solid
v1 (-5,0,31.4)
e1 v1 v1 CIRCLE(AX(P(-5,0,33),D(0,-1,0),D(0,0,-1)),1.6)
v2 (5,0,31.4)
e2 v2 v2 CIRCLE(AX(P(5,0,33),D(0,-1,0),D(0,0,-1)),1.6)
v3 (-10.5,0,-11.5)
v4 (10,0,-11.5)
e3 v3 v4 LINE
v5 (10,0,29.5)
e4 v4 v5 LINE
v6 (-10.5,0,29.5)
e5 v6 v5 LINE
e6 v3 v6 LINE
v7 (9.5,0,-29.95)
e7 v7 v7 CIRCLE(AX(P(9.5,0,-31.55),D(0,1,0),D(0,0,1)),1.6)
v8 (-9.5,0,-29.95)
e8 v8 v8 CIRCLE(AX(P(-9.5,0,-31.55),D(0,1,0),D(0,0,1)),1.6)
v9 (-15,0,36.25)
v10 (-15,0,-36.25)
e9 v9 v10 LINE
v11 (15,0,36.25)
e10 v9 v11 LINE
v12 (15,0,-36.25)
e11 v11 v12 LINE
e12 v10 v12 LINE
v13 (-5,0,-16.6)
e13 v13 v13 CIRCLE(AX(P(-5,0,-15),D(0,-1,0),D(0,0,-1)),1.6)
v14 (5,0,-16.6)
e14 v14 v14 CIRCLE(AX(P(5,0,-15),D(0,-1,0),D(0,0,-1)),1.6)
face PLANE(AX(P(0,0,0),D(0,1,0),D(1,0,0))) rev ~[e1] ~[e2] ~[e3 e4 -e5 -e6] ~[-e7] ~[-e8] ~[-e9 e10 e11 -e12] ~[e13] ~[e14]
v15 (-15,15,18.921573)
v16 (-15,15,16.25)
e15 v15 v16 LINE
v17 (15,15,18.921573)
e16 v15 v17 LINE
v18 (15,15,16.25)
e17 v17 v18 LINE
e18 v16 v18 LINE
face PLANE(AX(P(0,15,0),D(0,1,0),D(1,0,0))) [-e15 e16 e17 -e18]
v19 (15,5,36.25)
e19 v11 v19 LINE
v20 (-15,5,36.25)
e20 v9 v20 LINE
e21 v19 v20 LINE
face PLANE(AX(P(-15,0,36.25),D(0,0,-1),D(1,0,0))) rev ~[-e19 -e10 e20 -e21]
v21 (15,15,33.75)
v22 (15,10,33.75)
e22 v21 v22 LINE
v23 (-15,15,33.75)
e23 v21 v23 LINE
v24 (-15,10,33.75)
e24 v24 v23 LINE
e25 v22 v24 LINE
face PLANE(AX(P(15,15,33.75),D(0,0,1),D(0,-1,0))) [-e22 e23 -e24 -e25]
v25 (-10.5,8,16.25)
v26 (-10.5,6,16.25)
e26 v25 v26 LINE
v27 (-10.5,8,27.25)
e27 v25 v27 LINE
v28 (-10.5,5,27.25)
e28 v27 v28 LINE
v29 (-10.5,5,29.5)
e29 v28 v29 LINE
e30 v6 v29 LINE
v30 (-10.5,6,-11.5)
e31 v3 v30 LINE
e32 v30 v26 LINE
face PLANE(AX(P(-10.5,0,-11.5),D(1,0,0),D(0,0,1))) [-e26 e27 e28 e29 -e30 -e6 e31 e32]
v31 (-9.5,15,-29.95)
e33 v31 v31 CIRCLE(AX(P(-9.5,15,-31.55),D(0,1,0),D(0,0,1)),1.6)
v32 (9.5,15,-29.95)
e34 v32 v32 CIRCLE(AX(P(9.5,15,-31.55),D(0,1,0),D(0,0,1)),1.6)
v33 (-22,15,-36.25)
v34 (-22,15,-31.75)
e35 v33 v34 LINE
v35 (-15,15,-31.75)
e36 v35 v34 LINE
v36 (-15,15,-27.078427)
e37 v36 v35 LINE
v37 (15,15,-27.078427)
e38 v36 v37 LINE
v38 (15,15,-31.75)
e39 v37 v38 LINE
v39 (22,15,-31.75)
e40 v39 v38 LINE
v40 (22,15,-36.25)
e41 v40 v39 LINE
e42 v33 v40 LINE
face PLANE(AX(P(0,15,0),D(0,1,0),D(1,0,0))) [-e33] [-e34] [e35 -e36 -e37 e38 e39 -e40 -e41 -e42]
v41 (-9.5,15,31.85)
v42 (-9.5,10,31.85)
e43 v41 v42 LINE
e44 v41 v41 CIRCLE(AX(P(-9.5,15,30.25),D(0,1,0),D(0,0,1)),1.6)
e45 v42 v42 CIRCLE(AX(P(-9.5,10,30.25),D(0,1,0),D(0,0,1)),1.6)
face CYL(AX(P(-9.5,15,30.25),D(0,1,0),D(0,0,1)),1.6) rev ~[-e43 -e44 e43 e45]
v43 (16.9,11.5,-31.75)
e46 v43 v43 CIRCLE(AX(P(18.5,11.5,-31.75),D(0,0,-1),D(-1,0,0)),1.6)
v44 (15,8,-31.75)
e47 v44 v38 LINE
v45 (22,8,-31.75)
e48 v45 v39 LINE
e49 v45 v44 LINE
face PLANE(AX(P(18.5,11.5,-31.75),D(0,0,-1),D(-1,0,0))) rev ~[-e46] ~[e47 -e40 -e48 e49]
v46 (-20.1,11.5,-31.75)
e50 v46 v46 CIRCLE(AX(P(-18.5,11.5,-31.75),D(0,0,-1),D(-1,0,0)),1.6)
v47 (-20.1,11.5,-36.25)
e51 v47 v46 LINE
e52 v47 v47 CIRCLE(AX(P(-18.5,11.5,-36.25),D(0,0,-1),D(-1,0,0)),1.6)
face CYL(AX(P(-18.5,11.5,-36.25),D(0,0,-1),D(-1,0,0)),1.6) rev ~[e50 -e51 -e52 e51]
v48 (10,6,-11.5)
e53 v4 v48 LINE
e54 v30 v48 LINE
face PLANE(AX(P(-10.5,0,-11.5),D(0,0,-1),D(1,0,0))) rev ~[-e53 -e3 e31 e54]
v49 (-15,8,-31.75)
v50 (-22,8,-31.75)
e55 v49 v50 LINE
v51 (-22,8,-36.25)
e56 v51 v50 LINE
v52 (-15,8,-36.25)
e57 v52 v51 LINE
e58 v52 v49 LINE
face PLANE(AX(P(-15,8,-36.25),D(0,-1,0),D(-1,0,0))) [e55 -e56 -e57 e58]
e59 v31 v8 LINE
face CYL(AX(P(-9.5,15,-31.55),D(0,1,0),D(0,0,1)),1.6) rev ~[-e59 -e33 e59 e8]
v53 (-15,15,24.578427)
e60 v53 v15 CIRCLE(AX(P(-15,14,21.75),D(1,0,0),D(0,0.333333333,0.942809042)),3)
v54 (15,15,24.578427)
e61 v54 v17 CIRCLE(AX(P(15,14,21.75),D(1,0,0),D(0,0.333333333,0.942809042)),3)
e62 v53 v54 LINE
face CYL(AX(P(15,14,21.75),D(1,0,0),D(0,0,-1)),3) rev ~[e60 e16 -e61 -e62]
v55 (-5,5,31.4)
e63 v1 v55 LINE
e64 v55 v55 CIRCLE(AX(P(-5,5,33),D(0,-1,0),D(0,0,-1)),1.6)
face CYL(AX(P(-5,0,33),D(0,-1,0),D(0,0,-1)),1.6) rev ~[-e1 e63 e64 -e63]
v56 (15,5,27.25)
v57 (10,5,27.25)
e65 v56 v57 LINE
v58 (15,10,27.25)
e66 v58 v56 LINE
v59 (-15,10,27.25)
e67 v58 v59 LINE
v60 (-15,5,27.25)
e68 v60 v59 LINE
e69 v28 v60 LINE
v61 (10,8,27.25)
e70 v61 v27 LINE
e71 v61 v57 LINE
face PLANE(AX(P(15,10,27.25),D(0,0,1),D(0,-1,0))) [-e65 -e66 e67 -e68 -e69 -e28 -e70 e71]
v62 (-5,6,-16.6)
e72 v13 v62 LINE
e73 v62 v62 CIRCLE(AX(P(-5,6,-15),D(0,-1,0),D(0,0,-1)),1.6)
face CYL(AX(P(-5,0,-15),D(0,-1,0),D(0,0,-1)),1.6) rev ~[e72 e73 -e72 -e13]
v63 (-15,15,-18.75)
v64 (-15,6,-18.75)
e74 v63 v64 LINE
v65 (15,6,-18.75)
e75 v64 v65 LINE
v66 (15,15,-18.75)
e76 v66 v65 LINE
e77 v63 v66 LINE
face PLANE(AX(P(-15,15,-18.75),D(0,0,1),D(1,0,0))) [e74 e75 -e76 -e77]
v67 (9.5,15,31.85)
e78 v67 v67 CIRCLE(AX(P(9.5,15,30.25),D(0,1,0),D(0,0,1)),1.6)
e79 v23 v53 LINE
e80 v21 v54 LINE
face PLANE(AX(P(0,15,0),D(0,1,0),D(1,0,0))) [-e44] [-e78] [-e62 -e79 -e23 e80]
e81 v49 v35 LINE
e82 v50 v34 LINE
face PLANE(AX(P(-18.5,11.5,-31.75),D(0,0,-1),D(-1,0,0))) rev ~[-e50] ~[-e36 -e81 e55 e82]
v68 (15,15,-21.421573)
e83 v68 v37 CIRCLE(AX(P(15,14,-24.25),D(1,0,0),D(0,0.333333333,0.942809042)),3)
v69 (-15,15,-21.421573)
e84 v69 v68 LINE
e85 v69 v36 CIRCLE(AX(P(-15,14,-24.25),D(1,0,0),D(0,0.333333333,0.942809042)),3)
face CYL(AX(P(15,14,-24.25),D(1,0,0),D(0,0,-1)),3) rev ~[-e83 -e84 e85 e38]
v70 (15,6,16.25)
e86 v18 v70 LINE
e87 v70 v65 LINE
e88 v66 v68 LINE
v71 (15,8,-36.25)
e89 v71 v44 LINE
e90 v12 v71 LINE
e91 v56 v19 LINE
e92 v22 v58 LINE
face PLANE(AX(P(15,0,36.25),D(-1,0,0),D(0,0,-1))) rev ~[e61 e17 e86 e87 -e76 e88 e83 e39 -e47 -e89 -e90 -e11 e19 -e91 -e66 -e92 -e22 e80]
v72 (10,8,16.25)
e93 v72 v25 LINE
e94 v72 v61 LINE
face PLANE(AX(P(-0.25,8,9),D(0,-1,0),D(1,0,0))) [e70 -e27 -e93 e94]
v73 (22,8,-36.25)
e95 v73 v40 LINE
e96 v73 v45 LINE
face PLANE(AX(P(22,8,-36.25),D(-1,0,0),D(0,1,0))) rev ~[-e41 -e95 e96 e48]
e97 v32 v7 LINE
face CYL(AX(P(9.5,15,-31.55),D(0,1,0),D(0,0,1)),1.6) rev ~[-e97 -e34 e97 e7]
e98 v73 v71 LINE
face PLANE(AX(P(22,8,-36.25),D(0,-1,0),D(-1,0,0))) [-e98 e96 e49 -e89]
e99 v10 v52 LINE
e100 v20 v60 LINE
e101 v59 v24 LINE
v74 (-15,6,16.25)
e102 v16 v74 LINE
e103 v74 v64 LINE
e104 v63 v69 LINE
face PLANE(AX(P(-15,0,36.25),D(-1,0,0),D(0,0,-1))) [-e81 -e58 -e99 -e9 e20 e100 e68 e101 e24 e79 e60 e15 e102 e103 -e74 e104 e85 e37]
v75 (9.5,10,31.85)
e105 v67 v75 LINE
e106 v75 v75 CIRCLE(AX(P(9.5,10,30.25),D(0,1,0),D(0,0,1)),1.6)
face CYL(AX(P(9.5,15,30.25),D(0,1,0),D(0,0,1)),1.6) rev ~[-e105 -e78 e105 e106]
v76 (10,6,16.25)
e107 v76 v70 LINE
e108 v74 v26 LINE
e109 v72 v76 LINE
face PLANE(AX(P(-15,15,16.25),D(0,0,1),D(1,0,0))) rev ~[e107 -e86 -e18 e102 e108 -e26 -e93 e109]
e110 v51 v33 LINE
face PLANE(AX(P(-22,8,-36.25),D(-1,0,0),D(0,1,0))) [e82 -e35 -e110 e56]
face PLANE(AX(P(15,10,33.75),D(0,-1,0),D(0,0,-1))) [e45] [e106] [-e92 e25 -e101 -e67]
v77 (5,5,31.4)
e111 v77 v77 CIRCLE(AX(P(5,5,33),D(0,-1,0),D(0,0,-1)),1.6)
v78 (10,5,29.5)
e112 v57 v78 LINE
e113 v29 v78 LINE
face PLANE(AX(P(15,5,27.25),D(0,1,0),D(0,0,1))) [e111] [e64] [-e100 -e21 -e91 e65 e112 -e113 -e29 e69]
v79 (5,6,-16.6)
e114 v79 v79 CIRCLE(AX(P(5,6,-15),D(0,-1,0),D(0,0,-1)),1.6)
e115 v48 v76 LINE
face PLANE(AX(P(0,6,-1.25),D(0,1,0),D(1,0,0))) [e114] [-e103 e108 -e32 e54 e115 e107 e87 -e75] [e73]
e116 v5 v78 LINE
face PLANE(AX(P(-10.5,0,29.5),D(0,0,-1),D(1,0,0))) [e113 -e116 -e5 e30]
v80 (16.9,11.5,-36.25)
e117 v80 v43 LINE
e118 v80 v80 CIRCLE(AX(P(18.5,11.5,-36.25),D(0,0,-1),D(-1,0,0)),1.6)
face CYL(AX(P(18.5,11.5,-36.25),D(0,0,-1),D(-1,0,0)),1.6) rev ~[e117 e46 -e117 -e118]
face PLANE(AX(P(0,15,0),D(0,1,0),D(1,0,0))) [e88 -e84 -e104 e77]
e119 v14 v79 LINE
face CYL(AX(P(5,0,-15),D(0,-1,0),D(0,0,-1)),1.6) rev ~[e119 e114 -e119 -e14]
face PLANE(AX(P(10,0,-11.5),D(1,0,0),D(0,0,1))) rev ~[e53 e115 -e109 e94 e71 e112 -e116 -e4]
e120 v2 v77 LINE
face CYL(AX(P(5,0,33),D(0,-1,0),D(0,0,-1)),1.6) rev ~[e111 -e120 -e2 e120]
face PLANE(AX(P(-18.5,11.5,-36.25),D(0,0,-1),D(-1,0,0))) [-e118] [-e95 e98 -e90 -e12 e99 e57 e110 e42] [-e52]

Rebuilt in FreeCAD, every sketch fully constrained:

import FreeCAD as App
import Part
import Sketcher

V = App.Vector
Q = App.Units.Quantity

doc = App.newDocument("Part")
body = doc.addObject("PartDesign::Body", "Body")

# Sketch on XZ plane
sketch1 = body.newObject("Sketcher::SketchObject", "Sketch")
sketch1.AttachmentSupport = (doc.getObject("XZ_Plane"), [""])
sketch1.MapMode = "FlatFace"
sketch1.addGeometry([
    Part.LineSegment(V(-15, -36.25, 0), V(-15, 36.25, 0)),
    Part.LineSegment(V(-15, 36.25, 0), V(15, 36.25, 0)),
    Part.LineSegment(V(15, 36.25, 0), V(15, -36.25, 0)),
    Part.LineSegment(V(15, -36.25, 0), V(-15, -36.25, 0)),
], False)
sketch1.addConstraint([
    Sketcher.Constraint("Coincident", 0, 2, 1, 1),
    Sketcher.Constraint("Coincident", 1, 2, 2, 1),
    Sketcher.Constraint("Coincident", 2, 2, 3, 1),
    Sketcher.Constraint("Coincident", 3, 2, 0, 1),
    Sketcher.Constraint("Vertical", 0),
    Sketcher.Constraint("Horizontal", 1),
    Sketcher.Constraint("Vertical", 2),
    Sketcher.Constraint("Horizontal", 3),
    Sketcher.Constraint("Symmetric", 0, 2, 2, 2, -1, 1),
    Sketcher.Constraint("DistanceX", 1, 1, 1, 2, Q("30 mm")),
    Sketcher.Constraint("DistanceY", 0, 1, 0, 2, Q("72.5 mm")),
])
pad1 = body.newObject("PartDesign::Pad", "Pad")
pad1.Profile = sketch1
pad1.Length = 15
pad1.Reversed = True

# Sketch on XZ plane
sketch2 = body.newObject("Sketcher::SketchObject", "Sketch001")
sketch2.AttachmentSupport = (doc.getObject("XZ_Plane"), [""])
sketch2.MapMode = "FlatFace"
sketch2.addGeometry([
    Part.LineSegment(V(-10.5, 29.5, 0), V(-10.5, -11.5, 0)),
    Part.LineSegment(V(-10.5, -11.5, 0), V(10, -11.5, 0)),
    Part.LineSegment(V(10, -11.5, 0), V(10, 29.5, 0)),
    Part.LineSegment(V(10, 29.5, 0), V(-10.5, 29.5, 0)),
], False)
sketch2.addConstraint([
    Sketcher.Constraint("Coincident", 0, 2, 1, 1),
    Sketcher.Constraint("Coincident", 1, 2, 2, 1),
    Sketcher.Constraint("Coincident", 2, 2, 3, 1),
    Sketcher.Constraint("Coincident", 3, 2, 0, 1),
    Sketcher.Constraint("Vertical", 0),
    Sketcher.Constraint("Horizontal", 1),
    Sketcher.Constraint("Vertical", 2),
    Sketcher.Constraint("Horizontal", 3),
    Sketcher.Constraint("DistanceY", 0, 2, 0, 1, Q("41 mm")),
    Sketcher.Constraint("DistanceX", 1, 1, 1, 2, Q("20.5 mm")),
    Sketcher.Constraint("DistanceX", -1, 1, 1, 2, Q("10 mm")),
    Sketcher.Constraint("DistanceY", 0, 2, -1, 1, Q("11.5 mm")),
])
pocket1 = body.newObject("PartDesign::Pocket", "Pocket")
pocket1.Profile = sketch2
pocket1.Length = 8

# Sketch on XZ plane
sketch3 = body.newObject("Sketcher::SketchObject", "Sketch002")
sketch3.AttachmentSupport = (doc.getObject("XZ_Plane"), [""])
sketch3.MapMode = "FlatFace"
sketch3.AttachmentOffset = App.Placement(V(0, 0, -15), App.Rotation())
sketch3.addGeometry([
    Part.LineSegment(V(-15, -18.75, 0), V(-15, 16.25, 0)),
    Part.LineSegment(V(-15, 16.25, 0), V(15, 16.25, 0)),
    Part.LineSegment(V(15, 16.25, 0), V(15, -18.75, 0)),
    Part.LineSegment(V(15, -18.75, 0), V(-15, -18.75, 0)),
], False)
sketch3.addConstraint([
    Sketcher.Constraint("Coincident", 0, 2, 1, 1),
    Sketcher.Constraint("Coincident", 1, 2, 2, 1),
    Sketcher.Constraint("Coincident", 2, 2, 3, 1),
    Sketcher.Constraint("Coincident", 3, 2, 0, 1),
    Sketcher.Constraint("Vertical", 0),
    Sketcher.Constraint("Horizontal", 1),
    Sketcher.Constraint("Vertical", 2),
    Sketcher.Constraint("Horizontal", 3),
    Sketcher.Constraint("DistanceX", 1, 1, 1, 2, Q("30 mm")),
    Sketcher.Constraint("DistanceY", 0, 1, 0, 2, Q("35 mm")),
    Sketcher.Constraint("DistanceX", 0, 2, -1, 1, Q("15 mm")),
    Sketcher.Constraint("DistanceY", -1, 1, 0, 2, Q("16.25 mm")),
])
pocket2 = body.newObject("PartDesign::Pocket", "Pocket001")
pocket2.Profile = sketch3
pocket2.Length = 9
pocket2.Reversed = True

# Sketch on YZ plane
sketch4 = body.newObject("Sketcher::SketchObject", "Sketch003")
sketch4.AttachmentSupport = (doc.getObject("YZ_Plane"), [""])
sketch4.MapMode = "FlatFace"
sketch4.AttachmentOffset = App.Placement(V(0, 0, 15), App.Rotation())
sketch4.addGeometry([
    Part.LineSegment(V(10, 33.75, 0), V(15, 33.75, 0)),  # 0
    Part.LineSegment(V(15, 33.75, 0), V(15, 36.25, 0)),  # 1
    Part.LineSegment(V(15, 36.25, 0), V(5, 36.25, 0)),  # 2
    Part.LineSegment(V(5, 36.25, 0), V(5, 27.25, 0)),  # 3
    Part.LineSegment(V(5, 27.25, 0), V(10, 27.25, 0)),  # 4
    Part.LineSegment(V(10, 27.25, 0), V(10, 33.75, 0)),  # 5
], False)
sketch4.addConstraint([
    Sketcher.Constraint("Coincident", 0, 2, 1, 1),
    Sketcher.Constraint("Coincident", 1, 2, 2, 1),
    Sketcher.Constraint("Coincident", 2, 2, 3, 1),
    Sketcher.Constraint("Coincident", 3, 2, 4, 1),
    Sketcher.Constraint("Coincident", 4, 2, 5, 1),
    Sketcher.Constraint("Coincident", 5, 2, 0, 1),
    Sketcher.Constraint("Horizontal", 0),
    Sketcher.Constraint("Vertical", 1),
    Sketcher.Constraint("Horizontal", 2),
    Sketcher.Constraint("Vertical", 3),
    Sketcher.Constraint("Horizontal", 4),
    Sketcher.Constraint("Vertical", 5),
    Sketcher.Constraint("Equal", 0, 4),
    Sketcher.Constraint("DistanceX", 0, 1, 0, 2, Q("5 mm")),
    Sketcher.Constraint("DistanceY", 3, 2, 3, 1, Q("9 mm")),
    Sketcher.Constraint("DistanceY", 1, 1, 1, 2, Q("2.5 mm")),
    Sketcher.Constraint("DistanceX", -1, 1, 0, 2, Q("15 mm")),
    Sketcher.Constraint("DistanceY", -1, 1, 0, 2, Q("33.75 mm")),
])
pocket3 = body.newObject("PartDesign::Pocket", "Pocket002")
pocket3.Profile = sketch4
pocket3.Type = "ThroughAll"

# Sketch on XZ plane
sketch5 = body.newObject("Sketcher::SketchObject", "Sketch004")
sketch5.AttachmentSupport = (doc.getObject("XZ_Plane"), [""])
sketch5.MapMode = "FlatFace"
sketch5.addGeometry(Part.Circle(V(-5, 33, 0), V(0, 0, 1), 1.6), False)
sketch5.addConstraint([
    Sketcher.Constraint("Diameter", 0, Q("3.2 mm")),
    Sketcher.Constraint("DistanceX", 0, 3, -1, 1, Q("5 mm")),
    Sketcher.Constraint("DistanceY", -1, 1, 0, 3, Q("33 mm")),
])
pocket4 = body.newObject("PartDesign::Pocket", "Pocket003")
pocket4.Profile = sketch5
pocket4.Type = "UpToFirst"

# Sketch on XZ plane
sketch6 = body.newObject("Sketcher::SketchObject", "Sketch005")
sketch6.AttachmentSupport = (doc.getObject("XZ_Plane"), [""])
sketch6.MapMode = "FlatFace"
sketch6.addGeometry(Part.Circle(V(5, 33, 0), V(0, 0, 1), 1.6), False)
sketch6.addConstraint([
    Sketcher.Constraint("Diameter", 0, Q("3.2 mm")),
    Sketcher.Constraint("DistanceX", -1, 1, 0, 3, Q("5 mm")),
    Sketcher.Constraint("DistanceY", -1, 1, 0, 3, Q("33 mm")),
])
pocket5 = body.newObject("PartDesign::Pocket", "Pocket004")
pocket5.Profile = sketch6
pocket5.Type = "UpToFirst"

# Sketch on XZ plane
sketch7 = body.newObject("Sketcher::SketchObject", "Sketch006")
sketch7.AttachmentSupport = (doc.getObject("XZ_Plane"), [""])
sketch7.MapMode = "FlatFace"
sketch7.addGeometry(Part.Circle(V(-5, -15, 0), V(0, 0, 1), 1.6), False)
sketch7.addConstraint([
    Sketcher.Constraint("Diameter", 0, Q("3.2 mm")),
    Sketcher.Constraint("DistanceX", 0, 3, -1, 1, Q("5 mm")),
    Sketcher.Constraint("DistanceY", 0, 3, -1, 1, Q("15 mm")),
])
pocket6 = body.newObject("PartDesign::Pocket", "Pocket005")
pocket6.Profile = sketch7
pocket6.Type = "UpToFirst"

# Sketch on XZ plane
sketch8 = body.newObject("Sketcher::SketchObject", "Sketch007")
sketch8.AttachmentSupport = (doc.getObject("XZ_Plane"), [""])
sketch8.MapMode = "FlatFace"
sketch8.addGeometry(Part.Circle(V(5, -15, 0), V(0, 0, 1), 1.6), False)
sketch8.addConstraint([
    Sketcher.Constraint("Diameter", 0, Q("3.2 mm")),
    Sketcher.Constraint("DistanceX", -1, 1, 0, 3, Q("5 mm")),
    Sketcher.Constraint("DistanceY", 0, 3, -1, 1, Q("15 mm")),
])
pocket7 = body.newObject("PartDesign::Pocket", "Pocket006")
pocket7.Profile = sketch8
pocket7.Type = "UpToFirst"

# Sketch on YZ plane
sketch9 = body.newObject("Sketcher::SketchObject", "Sketch008")
sketch9.AttachmentSupport = (doc.getObject("YZ_Plane"), [""])
sketch9.MapMode = "FlatFace"
sketch9.AttachmentOffset = App.Placement(V(0, 0, 15), App.Rotation())
sketch9.addGeometry([
    Part.Circle(V(14, -24.25, 0), V(0, 0, 1), 3),
    Part.Circle(V(14, 21.75, 0), V(0, 0, 1), 3),
], False)
sketch9.addConstraint([
    Sketcher.Constraint("Equal", 0, 1),
    Sketcher.Constraint("Vertical", 0, 3, 1, 3),
    Sketcher.Constraint("Diameter", 0, Q("6 mm")),
    Sketcher.Constraint("DistanceX", -1, 1, 0, 3, Q("14 mm")),
    Sketcher.Constraint("DistanceY", 0, 3, 1, 3, Q("46 mm")),
    Sketcher.Constraint("DistanceY", 0, 3, -1, 1, Q("24.25 mm")),
])
pocket8 = body.newObject("PartDesign::Pocket", "Pocket007")
pocket8.Profile = sketch9
pocket8.Type = "ThroughAll"

# Sketch on XZ plane
sketch10 = body.newObject("Sketcher::SketchObject", "Sketch009")
sketch10.AttachmentSupport = (doc.getObject("XZ_Plane"), [""])
sketch10.MapMode = "FlatFace"
sketch10.AttachmentOffset = App.Placement(V(0, 0, -15), App.Rotation())
sketch10.addGeometry(Part.Circle(V(-9.5, 30.25, 0), V(0, 0, 1), 1.6), False)
sketch10.addConstraint([
    Sketcher.Constraint("Diameter", 0, Q("3.2 mm")),
    Sketcher.Constraint("DistanceX", 0, 3, -1, 1, Q("9.5 mm")),
    Sketcher.Constraint("DistanceY", -1, 1, 0, 3, Q("30.25 mm")),
])
pocket9 = body.newObject("PartDesign::Pocket", "Pocket008")
pocket9.Profile = sketch10
pocket9.Type = "UpToFirst"
pocket9.Reversed = True

# Sketch on XZ plane
sketch11 = body.newObject("Sketcher::SketchObject", "Sketch010")
sketch11.AttachmentSupport = (doc.getObject("XZ_Plane"), [""])
sketch11.MapMode = "FlatFace"
sketch11.AttachmentOffset = App.Placement(V(0, 0, -15), App.Rotation())
sketch11.addGeometry(Part.Circle(V(9.5, 30.25, 0), V(0, 0, 1), 1.6), False)
sketch11.addConstraint([
    Sketcher.Constraint("Diameter", 0, Q("3.2 mm")),
    Sketcher.Constraint("DistanceX", -1, 1, 0, 3, Q("9.5 mm")),
    Sketcher.Constraint("DistanceY", -1, 1, 0, 3, Q("30.25 mm")),
])
pocket10 = body.newObject("PartDesign::Pocket", "Pocket009")
pocket10.Profile = sketch11
pocket10.Type = "UpToFirst"
pocket10.Reversed = True

# Sketch on XZ plane
sketch12 = body.newObject("Sketcher::SketchObject", "Sketch011")
sketch12.AttachmentSupport = (doc.getObject("XZ_Plane"), [""])
sketch12.MapMode = "FlatFace"
sketch12.AttachmentOffset = App.Placement(V(0, 0, -15), App.Rotation())
sketch12.addGeometry(Part.Circle(V(-9.5, -31.55, 0), V(0, 0, 1), 1.6), False)
sketch12.addConstraint([
    Sketcher.Constraint("Diameter", 0, Q("3.2 mm")),
    Sketcher.Constraint("DistanceX", 0, 3, -1, 1, Q("9.5 mm")),
    Sketcher.Constraint("DistanceY", 0, 3, -1, 1, Q("31.55 mm")),
])
pocket11 = body.newObject("PartDesign::Pocket", "Pocket010")
pocket11.Profile = sketch12
pocket11.Type = "UpToFirst"
pocket11.Reversed = True

# Sketch on XZ plane
sketch13 = body.newObject("Sketcher::SketchObject", "Sketch012")
sketch13.AttachmentSupport = (doc.getObject("XZ_Plane"), [""])
sketch13.MapMode = "FlatFace"
sketch13.AttachmentOffset = App.Placement(V(0, 0, -15), App.Rotation())
sketch13.addGeometry(Part.Circle(V(9.5, -31.55, 0), V(0, 0, 1), 1.6), False)
sketch13.addConstraint([
    Sketcher.Constraint("Diameter", 0, Q("3.2 mm")),
    Sketcher.Constraint("DistanceX", -1, 1, 0, 3, Q("9.5 mm")),
    Sketcher.Constraint("DistanceY", 0, 3, -1, 1, Q("31.55 mm")),
])
pocket12 = body.newObject("PartDesign::Pocket", "Pocket011")
pocket12.Profile = sketch13
pocket12.Type = "UpToFirst"
pocket12.Reversed = True

# Sketch on XY plane
sketch14 = body.newObject("Sketcher::SketchObject", "Sketch013")
sketch14.AttachmentSupport = (doc.getObject("XY_Plane"), [""])
sketch14.MapMode = "FlatFace"
sketch14.AttachmentOffset = App.Placement(V(0, 0, -36.25), App.Rotation())
sketch14.addGeometry([
    Part.LineSegment(V(-15, 15, 0), V(-15, 8, 0)),  # 0
    Part.LineSegment(V(-15, 8, 0), V(-22, 8, 0)),  # 1
    Part.LineSegment(V(-22, 8, 0), V(-22, 15, 0)),  # 2
    Part.LineSegment(V(-22, 15, 0), V(-15, 15, 0)),  # 3
    Part.LineSegment(V(22, 15, 0), V(22, 8, 0)),  # 4
    Part.LineSegment(V(22, 8, 0), V(15, 8, 0)),  # 5
    Part.LineSegment(V(15, 8, 0), V(15, 15, 0)),  # 6
    Part.LineSegment(V(15, 15, 0), V(22, 15, 0)),  # 7
], False)
sketch14.addConstraint([
    Sketcher.Constraint("Coincident", 0, 2, 1, 1),
    Sketcher.Constraint("Coincident", 1, 2, 2, 1),
    Sketcher.Constraint("Coincident", 2, 2, 3, 1),
    Sketcher.Constraint("Coincident", 3, 2, 0, 1),
    Sketcher.Constraint("Coincident", 4, 2, 5, 1),
    Sketcher.Constraint("Coincident", 5, 2, 6, 1),
    Sketcher.Constraint("Coincident", 6, 2, 7, 1),
    Sketcher.Constraint("Coincident", 7, 2, 4, 1),
    Sketcher.Constraint("Vertical", 0),
    Sketcher.Constraint("Horizontal", 1),
    Sketcher.Constraint("Vertical", 2),
    Sketcher.Constraint("Horizontal", 3),
    Sketcher.Constraint("Vertical", 4),
    Sketcher.Constraint("Horizontal", 5),
    Sketcher.Constraint("Vertical", 6),
    Sketcher.Constraint("Horizontal", 7),
    Sketcher.Constraint("Symmetric", 1, 2, 4, 2, -2),
    Sketcher.Constraint("Symmetric", 3, 2, 6, 2, -2),
    Sketcher.Constraint("Equal", 7, 0),
    Sketcher.Constraint("DistanceX", 1, 2, 1, 1, Q("7 mm")),
    Sketcher.Constraint("DistanceX", 0, 2, -1, 1, Q("15 mm")),
    Sketcher.Constraint("DistanceY", -1, 1, 0, 2, Q("8 mm")),
])
pad2 = body.newObject("PartDesign::Pad", "Pad001")
pad2.Profile = sketch14
pad2.Length = 4.5

# Sketch on XY plane
sketch15 = body.newObject("Sketcher::SketchObject", "Sketch014")
sketch15.AttachmentSupport = (doc.getObject("XY_Plane"), [""])
sketch15.MapMode = "FlatFace"
sketch15.AttachmentOffset = App.Placement(V(0, 0, -36.25), App.Rotation())
sketch15.addGeometry(Part.Circle(V(-18.5, 11.5, 0), V(0, 0, 1), 1.6), False)
sketch15.addConstraint([
    Sketcher.Constraint("Diameter", 0, Q("3.2 mm")),
    Sketcher.Constraint("DistanceX", 0, 3, -1, 1, Q("18.5 mm")),
    Sketcher.Constraint("DistanceY", -1, 1, 0, 3, Q("11.5 mm")),
])
pocket13 = body.newObject("PartDesign::Pocket", "Pocket012")
pocket13.Profile = sketch15
pocket13.Type = "UpToFirst"
pocket13.Reversed = True

# Sketch on XY plane
sketch16 = body.newObject("Sketcher::SketchObject", "Sketch015")
sketch16.AttachmentSupport = (doc.getObject("XY_Plane"), [""])
sketch16.MapMode = "FlatFace"
sketch16.AttachmentOffset = App.Placement(V(0, 0, -36.25), App.Rotation())
sketch16.addGeometry(Part.Circle(V(18.5, 11.5, 0), V(0, 0, 1), 1.6), False)
sketch16.addConstraint([
    Sketcher.Constraint("Diameter", 0, Q("3.2 mm")),
    Sketcher.Constraint("DistanceX", -1, 1, 0, 3, Q("18.5 mm")),
    Sketcher.Constraint("DistanceY", -1, 1, 0, 3, Q("11.5 mm")),
])
pocket14 = body.newObject("PartDesign::Pocket", "Pocket013")
pocket14.Profile = sketch16
pocket14.Type = "UpToFirst"
pocket14.Reversed = True

doc.recompute()
